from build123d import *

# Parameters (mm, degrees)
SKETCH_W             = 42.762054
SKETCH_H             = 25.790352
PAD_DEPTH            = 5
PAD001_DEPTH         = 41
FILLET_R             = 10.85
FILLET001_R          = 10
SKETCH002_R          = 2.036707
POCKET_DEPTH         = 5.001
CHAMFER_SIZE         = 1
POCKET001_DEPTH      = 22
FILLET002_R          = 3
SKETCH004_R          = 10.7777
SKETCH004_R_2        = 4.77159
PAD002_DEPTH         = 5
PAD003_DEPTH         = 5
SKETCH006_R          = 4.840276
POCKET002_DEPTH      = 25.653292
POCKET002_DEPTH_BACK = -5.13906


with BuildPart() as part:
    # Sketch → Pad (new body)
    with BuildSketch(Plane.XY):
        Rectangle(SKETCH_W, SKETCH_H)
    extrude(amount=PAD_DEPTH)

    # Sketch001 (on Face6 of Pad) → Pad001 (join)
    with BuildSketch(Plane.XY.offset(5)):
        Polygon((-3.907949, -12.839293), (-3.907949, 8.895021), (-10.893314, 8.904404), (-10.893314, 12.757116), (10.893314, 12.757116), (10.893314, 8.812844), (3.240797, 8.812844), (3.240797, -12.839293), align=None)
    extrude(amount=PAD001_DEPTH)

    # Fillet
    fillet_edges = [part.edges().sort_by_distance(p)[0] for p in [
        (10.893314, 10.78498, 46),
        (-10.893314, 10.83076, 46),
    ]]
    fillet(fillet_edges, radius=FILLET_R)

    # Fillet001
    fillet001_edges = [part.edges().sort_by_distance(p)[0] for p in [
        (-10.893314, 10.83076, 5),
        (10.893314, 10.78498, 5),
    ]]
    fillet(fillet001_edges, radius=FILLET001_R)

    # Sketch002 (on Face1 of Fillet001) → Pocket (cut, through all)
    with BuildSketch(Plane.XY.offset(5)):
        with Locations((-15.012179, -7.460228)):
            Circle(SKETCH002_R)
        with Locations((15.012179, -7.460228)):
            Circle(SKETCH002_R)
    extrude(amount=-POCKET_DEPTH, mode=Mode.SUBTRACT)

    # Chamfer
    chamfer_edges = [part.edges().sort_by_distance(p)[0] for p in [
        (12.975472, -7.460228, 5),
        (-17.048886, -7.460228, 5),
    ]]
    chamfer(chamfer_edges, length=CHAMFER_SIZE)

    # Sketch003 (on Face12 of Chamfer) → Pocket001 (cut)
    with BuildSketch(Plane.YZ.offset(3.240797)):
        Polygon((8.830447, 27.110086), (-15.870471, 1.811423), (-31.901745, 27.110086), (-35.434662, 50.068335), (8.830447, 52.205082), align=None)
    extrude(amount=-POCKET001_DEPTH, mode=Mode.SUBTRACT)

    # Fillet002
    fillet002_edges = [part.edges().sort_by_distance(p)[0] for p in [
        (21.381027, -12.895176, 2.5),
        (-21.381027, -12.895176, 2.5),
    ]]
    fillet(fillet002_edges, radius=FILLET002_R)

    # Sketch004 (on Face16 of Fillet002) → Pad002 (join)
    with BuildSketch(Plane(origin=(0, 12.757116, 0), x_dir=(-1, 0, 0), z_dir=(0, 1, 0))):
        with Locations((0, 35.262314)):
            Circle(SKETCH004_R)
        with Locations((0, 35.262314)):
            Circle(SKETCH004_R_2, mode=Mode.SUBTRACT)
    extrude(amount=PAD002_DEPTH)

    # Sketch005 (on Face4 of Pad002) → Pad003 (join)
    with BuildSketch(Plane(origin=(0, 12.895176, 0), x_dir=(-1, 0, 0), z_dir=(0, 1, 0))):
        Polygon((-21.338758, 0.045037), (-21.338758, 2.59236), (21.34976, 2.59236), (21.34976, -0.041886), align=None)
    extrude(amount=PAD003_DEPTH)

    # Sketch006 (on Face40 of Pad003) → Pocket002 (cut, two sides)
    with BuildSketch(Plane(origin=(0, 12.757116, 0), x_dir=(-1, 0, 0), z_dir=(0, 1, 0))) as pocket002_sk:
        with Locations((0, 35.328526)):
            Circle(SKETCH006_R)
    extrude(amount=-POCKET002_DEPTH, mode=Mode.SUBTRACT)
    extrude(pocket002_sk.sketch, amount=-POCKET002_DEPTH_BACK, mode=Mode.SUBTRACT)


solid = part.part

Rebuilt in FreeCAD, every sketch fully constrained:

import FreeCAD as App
import Part
import Sketcher
from FreeCAD import Vector


def edges_at(feature, points):
    """Names of the edges that pass closest to the given points."""
    edges = feature.Shape.Edges
    near = lambda p: min(range(len(edges)), key=lambda i: edges[i].distToShape(Part.Vertex(*p))[0])
    return sorted({f"Edge{near(p) + 1}" for p in points})

doc = App.newDocument("Part")
body = doc.addObject("PartDesign::Body", "Body")

# Sketch on XY plane
sketch1 = doc.addObject("Sketcher::SketchObject", "Sketch")
body.addObject(sketch1)
sketch1.AttachmentSupport = (doc.XY_Plane, [""])
sketch1.MapMode = "FlatFace"
sketch1.addGeometry(Part.LineSegment(Vector(-21.381027, 12.895176, 0), Vector(-21.381027, -12.895176, 0)), False)
sketch1.addGeometry(Part.LineSegment(Vector(-21.381027, -12.895176, 0), Vector(21.381027, -12.895176, 0)), False)
sketch1.addGeometry(Part.LineSegment(Vector(21.381027, -12.895176, 0), Vector(21.381027, 12.895176, 0)), False)
sketch1.addGeometry(Part.LineSegment(Vector(21.381027, 12.895176, 0), Vector(-21.381027, 12.895176, 0)), False)
sketch1.addConstraint(Sketcher.Constraint("Coincident", 0, 2, 1, 1))
sketch1.addConstraint(Sketcher.Constraint("Coincident", 1, 2, 2, 1))
sketch1.addConstraint(Sketcher.Constraint("Coincident", 2, 2, 3, 1))
sketch1.addConstraint(Sketcher.Constraint("Coincident", 3, 2, 0, 1))
sketch1.addConstraint(Sketcher.Constraint("Vertical", 0))
sketch1.addConstraint(Sketcher.Constraint("Horizontal", 1))
sketch1.addConstraint(Sketcher.Constraint("Vertical", 2))
sketch1.addConstraint(Sketcher.Constraint("Horizontal", 3))
sketch1.addConstraint(Sketcher.Constraint("Symmetric", 0, 2, 2, 2, -1, 1))
sketch1.addConstraint(Sketcher.Constraint("DistanceY", 0, 2, 0, 1, 25.790352))
sketch1.addConstraint(Sketcher.Constraint("DistanceX", 1, 1, 1, 2, 42.762054))
pad1 = doc.addObject("PartDesign::Pad", "Pad")
body.addObject(pad1)
pad1.Profile = sketch1
pad1.Length = 5

# Sketch on XY plane
sketch2 = doc.addObject("Sketcher::SketchObject", "Sketch001")
body.addObject(sketch2)
sketch2.AttachmentSupport = (doc.XY_Plane, [""])
sketch2.MapMode = "FlatFace"
sketch2.AttachmentOffset = App.Placement(Vector(0, 0, 5), App.Rotation())
sketch2.addGeometry(Part.LineSegment(Vector(-3.907949, 8.895021, 0), Vector(-3.907949, -12.839293, 0)), False)
sketch2.addGeometry(Part.LineSegment(Vector(-3.907949, -12.839293, 0), Vector(3.240797, -12.839293, 0)), False)
sketch2.addGeometry(Part.LineSegment(Vector(3.240797, -12.839293, 0), Vector(3.240797, 8.812844, 0)), False)
sketch2.addGeometry(Part.LineSegment(Vector(3.240797, 8.812844, 0), Vector(10.893314, 8.812844, 0)), False)
sketch2.addGeometry(Part.LineSegment(Vector(10.893314, 8.812844, 0), Vector(10.893314, 12.757116, 0)), False)
sketch2.addGeometry(Part.LineSegment(Vector(10.893314, 12.757116, 0), Vector(-10.893314, 12.757116, 0)), False)
sketch2.addGeometry(Part.LineSegment(Vector(-10.893314, 12.757116, 0), Vector(-10.893314, 8.904404, 0)), False)
sketch2.addGeometry(Part.LineSegment(Vector(-10.893314, 8.904404, 0), Vector(-3.907949, 8.895021, 0)), False)
sketch2.addConstraint(Sketcher.Constraint("Coincident", 0, 2, 1, 1))
sketch2.addConstraint(Sketcher.Constraint("Coincident", 1, 2, 2, 1))
sketch2.addConstraint(Sketcher.Constraint("Coincident", 2, 2, 3, 1))
sketch2.addConstraint(Sketcher.Constraint("Coincident", 3, 2, 4, 1))
sketch2.addConstraint(Sketcher.Constraint("Coincident", 4, 2, 5, 1))
sketch2.addConstraint(Sketcher.Constraint("Coincident", 5, 2, 6, 1))
sketch2.addConstraint(Sketcher.Constraint("Coincident", 6, 2, 7, 1))
sketch2.addConstraint(Sketcher.Constraint("Coincident", 7, 2, 0, 1))
sketch2.addConstraint(Sketcher.Constraint("Vertical", 0))
sketch2.addConstraint(Sketcher.Constraint("Horizontal", 1))
sketch2.addConstraint(Sketcher.Constraint("Vertical", 2))
sketch2.addConstraint(Sketcher.Constraint("Horizontal", 3))
sketch2.addConstraint(Sketcher.Constraint("Vertical", 4))
sketch2.addConstraint(Sketcher.Constraint("Horizontal", 5))
sketch2.addConstraint(Sketcher.Constraint("Vertical", 6))
sketch2.addConstraint(Sketcher.Constraint("DistanceX", 5, 2, 5, 1, 21.786628))
sketch2.addConstraint(Sketcher.Constraint("DistanceY", 4, 1, 4, 2, 3.944272))
sketch2.addConstraint(Sketcher.Constraint("Distance", 7, 6.985371))
sketch2.addConstraint(Sketcher.Constraint("DistanceX", 1, 1, 1, 2, 7.148746))
sketch2.addConstraint(Sketcher.Constraint("DistanceY", 0, 2, 0, 1, 21.734314))
sketch2.addConstraint(Sketcher.Constraint("DistanceY", 2, 1, 2, 2, 21.652137))
sketch2.addConstraint(Sketcher.Constraint("DistanceY", 6, 2, 6, 1, 3.852712))
sketch2.addConstraint(Sketcher.Constraint("DistanceX", 0, 2, -1, 1, 3.907949))
sketch2.addConstraint(Sketcher.Constraint("DistanceY", -1, 1, 7, 2, 8.895021))
pad2 = doc.addObject("PartDesign::Pad", "Pad001")
body.addObject(pad2)
pad2.Profile = sketch2
pad2.Length = 41
doc.recompute()

fillet = doc.addObject("PartDesign::Fillet", "Fillet")
body.addObject(fillet)
fillet.Base = (pad2, edges_at(pad2, [(10.893, 10.785, 46), (-10.893, 10.831, 46)]))
fillet.Radius = 10.85
doc.recompute()

fillet2 = doc.addObject("PartDesign::Fillet", "Fillet001")
body.addObject(fillet2)
fillet2.Base = (fillet, edges_at(fillet, [(-10.893, 10.831, 5), (10.893, 10.785, 5)]))
fillet2.Radius = 10

# Sketch on XY plane
sketch3 = doc.addObject("Sketcher::SketchObject", "Sketch002")
body.addObject(sketch3)
sketch3.AttachmentSupport = (doc.XY_Plane, [""])
sketch3.MapMode = "FlatFace"
sketch3.AttachmentOffset = App.Placement(Vector(0, 0, 5), App.Rotation())
sketch3.addGeometry(Part.Circle(Vector(-15.012179, -7.460228, 0), Vector(0, 0, 1), 2.036707), False)
sketch3.addGeometry(Part.Circle(Vector(15.012179, -7.460228, 0), Vector(0, 0, 1), 2.036707), False)
sketch3.addConstraint(Sketcher.Constraint("Equal", 0, 1))
sketch3.addConstraint(Sketcher.Constraint("Symmetric", 0, 3, 1, 3, -2))
sketch3.addConstraint(Sketcher.Constraint("Diameter", 0, 4.073414))
sketch3.addConstraint(Sketcher.Constraint("DistanceX", 0, 3, -1, 1, 15.012179))
sketch3.addConstraint(Sketcher.Constraint("DistanceY", 0, 3, -1, 1, 7.460228))
pocket1 = doc.addObject("PartDesign::Pocket", "Pocket")
body.addObject(pocket1)
pocket1.Profile = sketch3
pocket1.Type = "ThroughAll"
doc.recompute()

chamfer = doc.addObject("PartDesign::Chamfer", "Chamfer")
body.addObject(chamfer)
chamfer.Base = (pocket1, edges_at(pocket1, [(12.975, -7.46, 5), (-17.049, -7.46, 5)]))
chamfer.Size = 1

# Sketch on YZ plane
sketch4 = doc.addObject("Sketcher::SketchObject", "Sketch003")
body.addObject(sketch4)
sketch4.AttachmentSupport = (doc.YZ_Plane, [""])
sketch4.MapMode = "FlatFace"
sketch4.AttachmentOffset = App.Placement(Vector(0, 0, 3.240797), App.Rotation())
sketch4.addGeometry(Part.LineSegment(Vector(-15.870471, 1.811423, 0), Vector(8.830447, 27.110086, 0)), False)
sketch4.addGeometry(Part.LineSegment(Vector(8.830447, 27.110086, 0), Vector(8.830447, 52.205082, 0)), False)
sketch4.addGeometry(Part.LineSegment(Vector(8.830447, 52.205082, 0), Vector(-35.434662, 50.068335, 0)), False)
sketch4.addGeometry(Part.LineSegment(Vector(-35.434662, 50.068335, 0), Vector(-31.901745, 27.110086, 0)), False)
sketch4.addGeometry(Part.LineSegment(Vector(-31.901745, 27.110086, 0), Vector(-15.870471, 1.811423, 0)), False)
sketch4.addConstraint(Sketcher.Constraint("Coincident", 0, 2, 1, 1))
sketch4.addConstraint(Sketcher.Constraint("Coincident", 1, 2, 2, 1))
sketch4.addConstraint(Sketcher.Constraint("Coincident", 2, 2, 3, 1))
sketch4.addConstraint(Sketcher.Constraint("Coincident", 3, 2, 4, 1))
sketch4.addConstraint(Sketcher.Constraint("Coincident", 4, 2, 0, 1))
sketch4.addConstraint(Sketcher.Constraint("Vertical", 1))
sketch4.addConstraint(Sketcher.Constraint("Horizontal", 0, 2, 3, 2))
sketch4.addConstraint(Sketcher.Constraint("Distance", 0, 35.357569))
sketch4.addConstraint(Sketcher.Constraint("Distance", 2, 44.316651))
sketch4.addConstraint(Sketcher.Constraint("Distance", 3, 23.228489))
sketch4.addConstraint(Sketcher.Constraint("Distance", 4, 29.950361))
sketch4.addConstraint(Sketcher.Constraint("DistanceY", 1, 1, 1, 2, 25.094996))
sketch4.addConstraint(Sketcher.Constraint("DistanceY", -1, 1, 1, 2, 52.205082))
sketch4.addConstraint(Sketcher.Constraint("DistanceX", 4, 2, -1, 1, 15.870471))
sketch4.addConstraint(Sketcher.Constraint("DistanceX", 2, 2, 1, 2, 44.265109))
pocket2 = doc.addObject("PartDesign::Pocket", "Pocket001")
body.addObject(pocket2)
pocket2.Profile = sketch4
pocket2.Length = 22
doc.recompute()

fillet3 = doc.addObject("PartDesign::Fillet", "Fillet002")
body.addObject(fillet3)
fillet3.Base = (pocket2, edges_at(pocket2, [(21.381, -12.895, 2.5), (-21.381, -12.895, 2.5)]))
fillet3.Radius = 3

# Sketch on XZ plane
sketch5 = doc.addObject("Sketcher::SketchObject", "Sketch004")
body.addObject(sketch5)
sketch5.AttachmentSupport = (doc.XZ_Plane, [""])
sketch5.MapMode = "FlatFace"
sketch5.AttachmentOffset = App.Placement(Vector(0, 0, -12.757116), App.Rotation())
sketch5.addGeometry(Part.Circle(Vector(0, 35.262314, 0), Vector(0, 0, 1), 10.7777), False)
sketch5.addGeometry(Part.Circle(Vector(0, 35.262314, 0), Vector(0, 0, 1), 4.77159), False)
sketch5.addConstraint(Sketcher.Constraint("Coincident", 1, 3, 0, 3))
sketch5.addConstraint(Sketcher.Constraint("PointOnObject", 0, 3, -2))
sketch5.addConstraint(Sketcher.Constraint("Diameter", 0, 21.5554))
sketch5.addConstraint(Sketcher.Constraint("Diameter", 1, 9.54318))
sketch5.addConstraint(Sketcher.Constraint("DistanceY", -1, 1, 0, 3, 35.262314))
pad3 = doc.addObject("PartDesign::Pad", "Pad002")
body.addObject(pad3)
pad3.Profile = sketch5
pad3.Length = 5
pad3.Reversed = True

# Sketch on XZ plane
sketch6 = doc.addObject("Sketcher::SketchObject", "Sketch005")
body.addObject(sketch6)
sketch6.AttachmentSupport = (doc.XZ_Plane, [""])
sketch6.MapMode = "FlatFace"
sketch6.AttachmentOffset = App.Placement(Vector(0, 0, -12.895176), App.Rotation())
sketch6.addGeometry(Part.LineSegment(Vector(21.338758, 2.59236, 0), Vector(21.338758, 0.045037, 0)), False)
sketch6.addGeometry(Part.LineSegment(Vector(21.338758, 0.045037, 0), Vector(-21.34976, -0.041886, 0)), False)
sketch6.addGeometry(Part.LineSegment(Vector(-21.34976, -0.041886, 0), Vector(-21.34976, 2.59236, 0)), False)
sketch6.addGeometry(Part.LineSegment(Vector(-21.34976, 2.59236, 0), Vector(21.338758, 2.59236, 0)), False)
sketch6.addConstraint(Sketcher.Constraint("Coincident", 0, 2, 1, 1))
sketch6.addConstraint(Sketcher.Constraint("Coincident", 1, 2, 2, 1))
sketch6.addConstraint(Sketcher.Constraint("Coincident", 2, 2, 3, 1))
sketch6.addConstraint(Sketcher.Constraint("Coincident", 3, 2, 0, 1))
sketch6.addConstraint(Sketcher.Constraint("Vertical", 0))
sketch6.addConstraint(Sketcher.Constraint("Vertical", 2))
sketch6.addConstraint(Sketcher.Constraint("Horizontal", 3))
sketch6.addConstraint(Sketcher.Constraint("DistanceX", 3, 1, 3, 2, 42.688518))
sketch6.addConstraint(Sketcher.Constraint("DistanceY", 0, 2, 0, 1, 2.547323))
sketch6.addConstraint(Sketcher.Constraint("DistanceY", 2, 1, 2, 2, 2.634246))
sketch6.addConstraint(Sketcher.Constraint("DistanceX", 1, 2, -1, 1, 21.34976))
sketch6.addConstraint(Sketcher.Constraint("DistanceY", -1, 1, 2, 2, 2.59236))
pad4 = doc.addObject("PartDesign::Pad", "Pad003")
body.addObject(pad4)
pad4.Profile = sketch6
pad4.Length = 5
pad4.Reversed = True

# Sketch on XZ plane
sketch7 = doc.addObject("Sketcher::SketchObject", "Sketch006")
body.addObject(sketch7)
sketch7.AttachmentSupport = (doc.XZ_Plane, [""])
sketch7.MapMode = "FlatFace"
sketch7.AttachmentOffset = App.Placement(Vector(0, 0, -12.757116), App.Rotation())
sketch7.addGeometry(Part.Circle(Vector(0, 35.328526, 0), Vector(0, 0, 1), 4.840276), False)
sketch7.addConstraint(Sketcher.Constraint("PointOnObject", 0, 3, -2))
sketch7.addConstraint(Sketcher.Constraint("Diameter", 0, 9.680552))
sketch7.addConstraint(Sketcher.Constraint("DistanceY", -1, 1, 0, 3, 35.328526))
pocket3 = doc.addObject("PartDesign::Pocket", "Pocket002")
body.addObject(pocket3)
pocket3.Profile = sketch7
pocket3.Type = "ThroughAll"
pocket3.Midplane = True

doc.recompute()
